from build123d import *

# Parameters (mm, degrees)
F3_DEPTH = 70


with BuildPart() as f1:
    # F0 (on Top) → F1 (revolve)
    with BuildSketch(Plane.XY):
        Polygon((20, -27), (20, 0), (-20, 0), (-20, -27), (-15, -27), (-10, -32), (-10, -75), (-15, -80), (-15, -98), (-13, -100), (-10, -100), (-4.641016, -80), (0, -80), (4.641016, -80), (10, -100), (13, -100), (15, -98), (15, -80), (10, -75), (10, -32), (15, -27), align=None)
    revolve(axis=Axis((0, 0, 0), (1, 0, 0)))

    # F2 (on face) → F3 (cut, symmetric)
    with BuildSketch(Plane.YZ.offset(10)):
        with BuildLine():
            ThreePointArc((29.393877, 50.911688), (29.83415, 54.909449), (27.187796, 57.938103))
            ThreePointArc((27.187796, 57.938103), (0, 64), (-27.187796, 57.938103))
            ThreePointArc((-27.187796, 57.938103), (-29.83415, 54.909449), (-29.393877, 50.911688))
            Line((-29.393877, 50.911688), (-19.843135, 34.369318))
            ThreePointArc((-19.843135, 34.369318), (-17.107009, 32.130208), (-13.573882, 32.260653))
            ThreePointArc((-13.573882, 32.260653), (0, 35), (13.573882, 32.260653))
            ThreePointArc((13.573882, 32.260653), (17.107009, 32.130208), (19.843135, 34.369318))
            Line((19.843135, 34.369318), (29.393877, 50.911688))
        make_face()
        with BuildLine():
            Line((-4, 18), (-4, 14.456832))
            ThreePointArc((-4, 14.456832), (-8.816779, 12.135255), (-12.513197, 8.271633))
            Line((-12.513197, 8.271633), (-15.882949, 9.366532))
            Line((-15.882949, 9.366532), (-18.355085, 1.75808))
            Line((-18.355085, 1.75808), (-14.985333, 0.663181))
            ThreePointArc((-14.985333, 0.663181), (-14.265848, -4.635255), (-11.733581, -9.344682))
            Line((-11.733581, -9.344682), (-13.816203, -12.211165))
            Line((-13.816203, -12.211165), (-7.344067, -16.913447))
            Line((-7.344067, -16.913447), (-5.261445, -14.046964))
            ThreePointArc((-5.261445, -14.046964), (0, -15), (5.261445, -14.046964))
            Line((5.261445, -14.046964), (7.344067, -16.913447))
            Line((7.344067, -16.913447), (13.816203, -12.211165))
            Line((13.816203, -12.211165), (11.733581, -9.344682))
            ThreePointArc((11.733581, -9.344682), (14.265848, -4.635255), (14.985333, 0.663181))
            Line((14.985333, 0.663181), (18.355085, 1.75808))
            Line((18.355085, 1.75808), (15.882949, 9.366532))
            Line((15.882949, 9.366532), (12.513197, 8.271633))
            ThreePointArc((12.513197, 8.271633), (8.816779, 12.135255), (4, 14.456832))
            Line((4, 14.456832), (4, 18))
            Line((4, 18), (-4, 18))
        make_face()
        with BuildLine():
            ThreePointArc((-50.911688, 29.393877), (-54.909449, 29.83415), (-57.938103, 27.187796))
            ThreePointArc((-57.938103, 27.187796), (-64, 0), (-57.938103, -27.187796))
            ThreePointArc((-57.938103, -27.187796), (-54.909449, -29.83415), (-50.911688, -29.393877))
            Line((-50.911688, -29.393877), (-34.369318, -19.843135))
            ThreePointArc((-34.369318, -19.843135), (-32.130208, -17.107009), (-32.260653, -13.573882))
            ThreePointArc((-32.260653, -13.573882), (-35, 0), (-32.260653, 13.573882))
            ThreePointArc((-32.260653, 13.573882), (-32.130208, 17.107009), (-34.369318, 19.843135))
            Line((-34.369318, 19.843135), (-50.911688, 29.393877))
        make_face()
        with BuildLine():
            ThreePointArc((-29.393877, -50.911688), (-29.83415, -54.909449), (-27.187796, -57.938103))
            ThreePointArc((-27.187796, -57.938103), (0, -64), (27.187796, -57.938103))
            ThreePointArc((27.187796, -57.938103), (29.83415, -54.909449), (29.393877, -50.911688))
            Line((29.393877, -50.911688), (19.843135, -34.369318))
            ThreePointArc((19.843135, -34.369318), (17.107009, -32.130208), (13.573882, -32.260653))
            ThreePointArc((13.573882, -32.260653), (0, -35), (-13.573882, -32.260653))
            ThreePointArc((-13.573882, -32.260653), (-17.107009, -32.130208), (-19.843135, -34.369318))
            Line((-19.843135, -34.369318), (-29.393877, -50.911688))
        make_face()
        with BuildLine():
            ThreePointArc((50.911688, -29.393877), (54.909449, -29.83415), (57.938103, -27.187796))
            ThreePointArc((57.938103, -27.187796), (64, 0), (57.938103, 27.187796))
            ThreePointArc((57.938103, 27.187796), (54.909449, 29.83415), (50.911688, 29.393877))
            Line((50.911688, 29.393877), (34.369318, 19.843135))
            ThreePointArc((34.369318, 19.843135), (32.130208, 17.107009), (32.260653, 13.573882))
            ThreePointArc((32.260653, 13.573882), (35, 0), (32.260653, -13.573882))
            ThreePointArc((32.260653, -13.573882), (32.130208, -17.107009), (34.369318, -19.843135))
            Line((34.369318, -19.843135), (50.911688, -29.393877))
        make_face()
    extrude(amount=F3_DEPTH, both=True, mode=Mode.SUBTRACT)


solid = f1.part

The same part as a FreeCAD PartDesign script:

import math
import FreeCAD as App
import Part
import Sketcher

V = App.Vector
Q = App.Units.Quantity


def add_polygon(sketch, points):
    """Adds a closed chain of lines whose ends are joined by coincident constraints."""
    first, n = sketch.GeometryCount, len(points)
    for a, b in zip(points, points[1:] + points[:1]):
        sketch.addGeometry(Part.LineSegment(App.Vector(*a, 0), App.Vector(*b, 0)), False)
    for i in range(n):
        sketch.addConstraint(Sketcher.Constraint("Coincident", first + i, 2, first + (i + 1) % n, 1))

doc = App.newDocument("Part")
body = doc.addObject("PartDesign::Body", "Body")

# Sketch on XY plane
sketch1 = doc.addObject("Sketcher::SketchObject", "Sketch")
body.addObject(sketch1)
sketch1.AttachmentSupport = (doc.XY_Plane, [""])
sketch1.MapMode = "FlatFace"
add_polygon(sketch1, [(20, -27), (20, 0), (-20, 0), (-20, -27), (-15, -27), (-10, -32), (-10, -75), (-15, -80), (-15, -98), (-13, -100), (-10, -100), (-4.6, -80), (4.6, -80), (10, -100), (13, -100), (15, -98), (15, -80), (10, -75), (10, -32), (15, -27)])  # lines 0-19
sketch1.addConstraint([
    Sketcher.Constraint("Vertical", 0),
    Sketcher.Constraint("Horizontal", 1),
    Sketcher.Constraint("Vertical", 2),
    Sketcher.Constraint("Horizontal", 3),
    Sketcher.Constraint("Vertical", 5),
    Sketcher.Constraint("Vertical", 7),
    Sketcher.Constraint("Horizontal", 9),
    Sketcher.Constraint("Horizontal", 11),
    Sketcher.Constraint("Horizontal", 13),
    Sketcher.Constraint("Vertical", 15),
    Sketcher.Constraint("Vertical", 17),
    Sketcher.Constraint("Horizontal", 19),
    Sketcher.Constraint("Symmetric", 0, 2, 1, 2, -1, 1),
    Sketcher.Constraint("Symmetric", 9, 2, 12, 2, -2),
    Sketcher.Constraint("Symmetric", 7, 2, 14, 2, -2),
    Sketcher.Constraint("Symmetric", 5, 2, 16, 2, -2),
    Sketcher.Constraint("Symmetric", 3, 2, 18, 2, -2),
    Sketcher.Constraint("Perpendicular", 4, 6),
    Sketcher.Constraint("Perpendicular", 6, 8),
    Sketcher.Constraint("Perpendicular", 8, 14),
    Sketcher.Constraint("Perpendicular", 14, 16),
    Sketcher.Constraint("Perpendicular", 16, 18),
    Sketcher.Constraint("Horizontal", 6, 2, 10, 2),
    Sketcher.Constraint("Horizontal", 11, 2, 15, 2),
    Sketcher.Constraint("Vertical", 3, 2, 6, 2),
    Sketcher.Constraint("Vertical", 5, 2, 9, 2),
    Sketcher.Constraint("Equal", 10, 12),
    Sketcher.Constraint("DistanceX", 1, 2, 1, 1, 40.0),
    Sketcher.Constraint("DistanceX", 3, 1, 3, 2, 5.0),
    Sketcher.Constraint("DistanceX", 9, 1, 9, 2, 3.0),
    Sketcher.Constraint("DistanceY", 0, 1, 0, 2, 27.0),
    Sketcher.Constraint("DistanceY", 5, 2, 5, 1, 43.0),
    Sketcher.Constraint("DistanceY", 7, 2, 7, 1, 18.0),
    Sketcher.Constraint("Angle", 10, Q("75 deg")),
    Sketcher.Constraint("DistanceX", 4, 2, -1, 1, 10.0),
])
revolution = doc.addObject("PartDesign::Revolution", "Revolution")
body.addObject(revolution)
revolution.Profile = sketch1
revolution.ReferenceAxis = (sketch1, ["H_Axis"])
revolution.Angle = 360

# Sketch on YZ plane
sketch2 = doc.addObject("Sketcher::SketchObject", "Sketch001")
body.addObject(sketch2)
sketch2.AttachmentSupport = (doc.YZ_Plane, [""])
sketch2.MapMode = "FlatFace"
sketch2.AttachmentOffset = App.Placement(V(0, 0, 10), App.Rotation())
sketch2.addGeometry([
    Part.ArcOfCircle(Part.Circle(V(25.1, 53.4, 0), V(0, 0, 1), 5), math.radians(-30), math.radians(65)),  # 0
    Part.ArcOfCircle(Part.Circle(V(0, 0, 0), V(0, 0, 1), 64), math.radians(65), math.radians(115)),  # 1
    Part.ArcOfCircle(Part.Circle(V(-25.1, 53.4, 0), V(0, 0, 1), 5), math.radians(115), math.radians(210)),  # 2
    Part.LineSegment(V(-29.4, 50.9, 0), V(-19.8, 34.4, 0)),  # 3
    Part.ArcOfCircle(Part.Circle(V(-15.5, 36.9, 0), V(0, 0, 1), 5), math.radians(-150), math.radians(-67)),  # 4
    Part.ArcOfCircle(Part.Circle(V(0, 0, 0), V(0, 0, 1), 35), math.radians(67), math.radians(113)),  # 5
    Part.ArcOfCircle(Part.Circle(V(15.5, 36.9, 0), V(0, 0, 1), 5), math.radians(-113), math.radians(-30)),  # 6
    Part.LineSegment(V(19.8, 34.4, 0), V(29.4, 50.9, 0)),  # 7
    Part.LineSegment(V(-4, 18, 0), V(-4, 14.5, 0)),  # 8
    Part.ArcOfCircle(Part.Circle(V(0, 0, 0), V(0, 0, 1), 15), math.radians(105), math.radians(147)),  # 9
    Part.LineSegment(V(-12.5, 8.3, 0), V(-15.9, 9.4, 0)),  # 10
    Part.LineSegment(V(-15.9, 9.4, 0), V(-18.4, 1.8, 0)),  # 11
    Part.LineSegment(V(-18.4, 1.8, 0), V(-15, 0.7, 0)),  # 12
    Part.ArcOfCircle(Part.Circle(V(0, 0, 0), V(0, 0, 1), 15), math.radians(177), math.radians(219)),  # 13
    Part.LineSegment(V(-11.7, -9.3, 0), V(-13.8, -12.2, 0)),  # 14
    Part.LineSegment(V(-13.8, -12.2, 0), V(-7.3, -16.9, 0)),  # 15
    Part.LineSegment(V(-7.3, -16.9, 0), V(-5.3, -14, 0)),  # 16
    Part.ArcOfCircle(Part.Circle(V(0, 0, 0), V(0, 0, 1), 15), math.radians(-111), math.radians(-69)),  # 17
    Part.LineSegment(V(5.3, -14, 0), V(7.3, -16.9, 0)),  # 18
    Part.LineSegment(V(7.3, -16.9, 0), V(13.8, -12.2, 0)),  # 19
    Part.LineSegment(V(13.8, -12.2, 0), V(11.7, -9.3, 0)),  # 20
    Part.ArcOfCircle(Part.Circle(V(0, 0, 0), V(0, 0, 1), 15), math.radians(-39), math.radians(3)),  # 21
    Part.LineSegment(V(15, 0.7, 0), V(18.4, 1.8, 0)),  # 22
    Part.LineSegment(V(18.4, 1.8, 0), V(15.9, 9.4, 0)),  # 23
    Part.LineSegment(V(15.9, 9.4, 0), V(12.5, 8.3, 0)),  # 24
    Part.ArcOfCircle(Part.Circle(V(0, 0, 0), V(0, 0, 1), 15), math.radians(33), math.radians(75)),  # 25
    Part.LineSegment(V(4, 14.5, 0), V(4, 18, 0)),  # 26
    Part.LineSegment(V(4, 18, 0), V(-4, 18, 0)),  # 27
    Part.ArcOfCircle(Part.Circle(V(-53.4, 25.1, 0), V(0, 0, 1), 5), math.radians(60), math.radians(155)),  # 28
    Part.ArcOfCircle(Part.Circle(V(0, 0, 0), V(0, 0, 1), 64), math.radians(155), math.radians(205)),  # 29
    Part.ArcOfCircle(Part.Circle(V(-53.4, -25.1, 0), V(0, 0, 1), 5), math.radians(-155), math.radians(-60)),  # 30
    Part.LineSegment(V(-50.9, -29.4, 0), V(-34.4, -19.8, 0)),  # 31
    Part.ArcOfCircle(Part.Circle(V(-36.9, -15.5, 0), V(0, 0, 1), 5), math.radians(-60), math.radians(23)),  # 32
    Part.ArcOfCircle(Part.Circle(V(0, 0, 0), V(0, 0, 1), 35), math.radians(157), math.radians(203)),  # 33
    Part.ArcOfCircle(Part.Circle(V(-36.9, 15.5, 0), V(0, 0, 1), 5), math.radians(-23), math.radians(60)),  # 34
    Part.LineSegment(V(-34.4, 19.8, 0), V(-50.9, 29.4, 0)),  # 35
    Part.ArcOfCircle(Part.Circle(V(-25.1, -53.4, 0), V(0, 0, 1), 5), math.radians(150), math.radians(245)),  # 36
    Part.ArcOfCircle(Part.Circle(V(0, 0, 0), V(0, 0, 1), 64), math.radians(-115), math.radians(-65)),  # 37
    Part.ArcOfCircle(Part.Circle(V(25.1, -53.4, 0), V(0, 0, 1), 5), math.radians(-65), math.radians(30)),  # 38
    Part.LineSegment(V(29.4, -50.9, 0), V(19.8, -34.4, 0)),  # 39
    Part.ArcOfCircle(Part.Circle(V(15.5, -36.9, 0), V(0, 0, 1), 5), math.radians(30), math.radians(113)),  # 40
    Part.ArcOfCircle(Part.Circle(V(0, 0, 0), V(0, 0, 1), 35), math.radians(-113), math.radians(-67)),  # 41
    Part.ArcOfCircle(Part.Circle(V(-15.5, -36.9, 0), V(0, 0, 1), 5), math.radians(67), math.radians(150)),  # 42
    Part.LineSegment(V(-19.8, -34.4, 0), V(-29.4, -50.9, 0)),  # 43
    Part.ArcOfCircle(Part.Circle(V(53.4, -25.1, 0), V(0, 0, 1), 5), math.radians(-120), math.radians(-25)),  # 44
    Part.ArcOfCircle(Part.Circle(V(0, 0, 0), V(0, 0, 1), 64), math.radians(-25), math.radians(25)),  # 45
    Part.ArcOfCircle(Part.Circle(V(53.4, 25.1, 0), V(0, 0, 1), 5), math.radians(25), math.radians(120)),  # 46
    Part.LineSegment(V(50.9, 29.4, 0), V(34.4, 19.8, 0)),  # 47
    Part.ArcOfCircle(Part.Circle(V(36.9, 15.5, 0), V(0, 0, 1), 5), math.radians(120), math.radians(203)),  # 48
    Part.ArcOfCircle(Part.Circle(V(0, 0, 0), V(0, 0, 1), 35), math.radians(-23), math.radians(23)),  # 49
    Part.ArcOfCircle(Part.Circle(V(36.9, -15.5, 0), V(0, 0, 1), 5), math.radians(157), math.radians(240)),  # 50
    Part.LineSegment(V(34.4, -19.8, 0), V(50.9, -29.4, 0)),  # 51
], False)
sketch2.addConstraint([
    Sketcher.Constraint("Tangent", 0, 2, 1, 1),
    Sketcher.Constraint("Tangent", 1, 2, 2, 1),
    Sketcher.Constraint("Tangent", 2, 2, 3, 1),
    Sketcher.Constraint("Tangent", 3, 2, 4, 1),
    Sketcher.Constraint("Tangent", 4, 2, 5, 2),
    Sketcher.Constraint("Tangent", 5, 1, 6, 1),
    Sketcher.Constraint("Tangent", 6, 2, 7, 1),
    Sketcher.Constraint("Tangent", 7, 2, 0, 1),
    Sketcher.Constraint("Coincident", 8, 2, 9, 1),
    Sketcher.Constraint("Coincident", 9, 2, 10, 1),
    Sketcher.Constraint("Coincident", 10, 2, 11, 1),
    Sketcher.Constraint("Coincident", 11, 2, 12, 1),
    Sketcher.Constraint("Coincident", 12, 2, 13, 1),
    Sketcher.Constraint("Coincident", 13, 2, 14, 1),
    Sketcher.Constraint("Coincident", 14, 2, 15, 1),
    Sketcher.Constraint("Coincident", 15, 2, 16, 1),
    Sketcher.Constraint("Coincident", 16, 2, 17, 1),
    Sketcher.Constraint("Coincident", 17, 2, 18, 1),
    Sketcher.Constraint("Coincident", 18, 2, 19, 1),
    Sketcher.Constraint("Coincident", 19, 2, 20, 1),
    Sketcher.Constraint("Coincident", 20, 2, 21, 1),
    Sketcher.Constraint("Coincident", 21, 2, 22, 1),
    Sketcher.Constraint("Coincident", 22, 2, 23, 1),
    Sketcher.Constraint("Coincident", 23, 2, 24, 1),
    Sketcher.Constraint("Coincident", 24, 2, 25, 1),
    Sketcher.Constraint("Coincident", 25, 2, 26, 1),
    Sketcher.Constraint("Coincident", 26, 2, 27, 1),
    Sketcher.Constraint("Coincident", 27, 2, 8, 1),
    Sketcher.Constraint("Tangent", 28, 2, 29, 1),
    Sketcher.Constraint("Tangent", 29, 2, 30, 1),
    Sketcher.Constraint("Tangent", 30, 2, 31, 1),
    Sketcher.Constraint("Tangent", 31, 2, 32, 1),
    Sketcher.Constraint("Tangent", 32, 2, 33, 2),
    Sketcher.Constraint("Tangent", 33, 1, 34, 1),
    Sketcher.Constraint("Tangent", 34, 2, 35, 1),
    Sketcher.Constraint("Tangent", 35, 2, 28, 1),
    Sketcher.Constraint("Tangent", 36, 2, 37, 1),
    Sketcher.Constraint("Tangent", 37, 2, 38, 1),
    Sketcher.Constraint("Tangent", 38, 2, 39, 1),
    Sketcher.Constraint("Tangent", 39, 2, 40, 1),
    Sketcher.Constraint("Tangent", 40, 2, 41, 2),
    Sketcher.Constraint("Tangent", 41, 1, 42, 1),
    Sketcher.Constraint("Tangent", 42, 2, 43, 1),
    Sketcher.Constraint("Tangent", 43, 2, 36, 1),
    Sketcher.Constraint("Tangent", 44, 2, 45, 1),
    Sketcher.Constraint("Tangent", 45, 2, 46, 1),
    Sketcher.Constraint("Tangent", 46, 2, 47, 1),
    Sketcher.Constraint("Tangent", 47, 2, 48, 1),
    Sketcher.Constraint("Tangent", 48, 2, 49, 2),
    Sketcher.Constraint("Tangent", 49, 1, 50, 1),
    Sketcher.Constraint("Tangent", 50, 2, 51, 1),
    Sketcher.Constraint("Tangent", 51, 2, 44, 1),
    Sketcher.Constraint("Vertical", 8),
    Sketcher.Constraint("Vertical", 26),
    Sketcher.Constraint("Horizontal", 27),
    Sketcher.Constraint("Coincident", 1, 3, -1, 1),
    Sketcher.Constraint("Coincident", 5, 3, -1, 1),
    Sketcher.Constraint("Coincident", 9, 3, -1, 1),
    Sketcher.Constraint("Coincident", 13, 3, -1, 1),
    Sketcher.Constraint("Coincident", 17, 3, -1, 1),
    Sketcher.Constraint("Coincident", 21, 3, -1, 1),
    Sketcher.Constraint("Coincident", 25, 3, -1, 1),
    Sketcher.Constraint("Coincident", 29, 3, -1, 1),
    Sketcher.Constraint("Coincident", 33, 3, -1, 1),
    Sketcher.Constraint("Coincident", 37, 3, -1, 1),
    Sketcher.Constraint("Coincident", 41, 3, -1, 1),
    Sketcher.Constraint("Coincident", 45, 3, -1, 1),
    Sketcher.Constraint("Coincident", 49, 3, -1, 1),
    Sketcher.Constraint("Equal", 0, 2),
    Sketcher.Constraint("Equal", 2, 4),
    Sketcher.Constraint("Equal", 4, 6),
    Sketcher.Constraint("Equal", 13, 17),
    Sketcher.Constraint("Equal", 17, 21),
    Sketcher.Constraint("Equal", 9, 25),
    Sketcher.Constraint("Equal", 6, 28),
    Sketcher.Constraint("Equal", 1, 29),
    Sketcher.Constraint("Equal", 28, 30),
    Sketcher.Constraint("Equal", 30, 32),
    Sketcher.Constraint("Equal", 5, 33),
    Sketcher.Constraint("Equal", 32, 34),
    Sketcher.Constraint("Equal", 34, 36),
    Sketcher.Constraint("Equal", 29, 37),
    Sketcher.Constraint("Equal", 36, 38),
    Sketcher.Constraint("Equal", 38, 40),
    Sketcher.Constraint("Equal", 33, 41),
    Sketcher.Constraint("Equal", 40, 42),
    Sketcher.Constraint("Equal", 42, 44),
    Sketcher.Constraint("Equal", 37, 45),
    Sketcher.Constraint("Equal", 44, 46),
    Sketcher.Constraint("Equal", 46, 48),
    Sketcher.Constraint("Equal", 41, 49),
    Sketcher.Constraint("Equal", 48, 50),
    Sketcher.Constraint("Symmetric", 2, 2, 38, 2, -1, 1),
    Sketcher.Constraint("Symmetric", 6, 2, 42, 2, -1, 1),
    Sketcher.Constraint("Symmetric", 30, 2, 46, 2, -1, 1),
    Sketcher.Constraint("Symmetric", 34, 2, 50, 2, -1, 1),
    Sketcher.Constraint("Symmetric", 3, 2, 6, 2, -2),
    Sketcher.Constraint("Symmetric", 15, 2, 18, 2, -2),
    Sketcher.Constraint("Symmetric", 14, 2, 19, 2, -2),
    Sketcher.Constraint("Symmetric", 11, 2, 22, 2, -2),
    Sketcher.Constraint("Symmetric", 10, 2, 23, 2, -2),
    Sketcher.Constraint("Symmetric", 35, 2, 46, 2, -2),
    Sketcher.Constraint("Perpendicular", 10, 11),
    Sketcher.Constraint("Perpendicular", 11, 12),
    Sketcher.Constraint("Perpendicular", 14, 15),
    Sketcher.Constraint("Perpendicular", 15, 16),
    Sketcher.Constraint("Perpendicular", 18, 19),
    Sketcher.Constraint("Perpendicular", 19, 20),
    Sketcher.Constraint("Perpendicular", 22, 23),
    Sketcher.Constraint("Perpendicular", 23, 24),
    Sketcher.Constraint("Perpendicular", 3, 31),
    Sketcher.Constraint("Horizontal", 8, 2, 25, 2),
    Sketcher.Constraint("Equal", 10, 12),
    Sketcher.Constraint("Equal", 12, 14),
    Sketcher.Constraint("Equal", 11, 15),
    Sketcher.Constraint("Equal", 14, 16),
    Sketcher.Constraint("Equal", 7, 31),
    Sketcher.Constraint("Radius", 0, 5.0),
    Sketcher.Constraint("Radius", 5, 35.000001),
    Sketcher.Constraint("Radius", 13, 15.000001),
    Sketcher.Constraint("DistanceX", 27, 2, 27, 1, 8.0),
    Sketcher.Constraint("Angle", 3, Q("-59.999999 deg")),
    Sketcher.Constraint("Angle", 10, Q("161.999997 deg")),
    Sketcher.Constraint("Angle", 14, Q("-126.000003 deg")),
    Sketcher.Constraint("Distance", 11, 8.0),
    Sketcher.Constraint("DistanceY", -1, 1, 26, 2, 18.0),
    Sketcher.Constraint("Radius", 1, 64.000003),
    Sketcher.Constraint("Radius", 9, 14.999998),
    Sketcher.Constraint("DistanceX", -1, 1, 0, 3, 25.063751),
    Sketcher.Constraint("DistanceX", 10, 2, -1, 1, 15.882949),
])
pocket1 = doc.addObject("PartDesign::Pocket", "Pocket")
body.addObject(pocket1)
pocket1.Profile = sketch2
pocket1.Length = 140
pocket1.Midplane = True

doc.recompute()
